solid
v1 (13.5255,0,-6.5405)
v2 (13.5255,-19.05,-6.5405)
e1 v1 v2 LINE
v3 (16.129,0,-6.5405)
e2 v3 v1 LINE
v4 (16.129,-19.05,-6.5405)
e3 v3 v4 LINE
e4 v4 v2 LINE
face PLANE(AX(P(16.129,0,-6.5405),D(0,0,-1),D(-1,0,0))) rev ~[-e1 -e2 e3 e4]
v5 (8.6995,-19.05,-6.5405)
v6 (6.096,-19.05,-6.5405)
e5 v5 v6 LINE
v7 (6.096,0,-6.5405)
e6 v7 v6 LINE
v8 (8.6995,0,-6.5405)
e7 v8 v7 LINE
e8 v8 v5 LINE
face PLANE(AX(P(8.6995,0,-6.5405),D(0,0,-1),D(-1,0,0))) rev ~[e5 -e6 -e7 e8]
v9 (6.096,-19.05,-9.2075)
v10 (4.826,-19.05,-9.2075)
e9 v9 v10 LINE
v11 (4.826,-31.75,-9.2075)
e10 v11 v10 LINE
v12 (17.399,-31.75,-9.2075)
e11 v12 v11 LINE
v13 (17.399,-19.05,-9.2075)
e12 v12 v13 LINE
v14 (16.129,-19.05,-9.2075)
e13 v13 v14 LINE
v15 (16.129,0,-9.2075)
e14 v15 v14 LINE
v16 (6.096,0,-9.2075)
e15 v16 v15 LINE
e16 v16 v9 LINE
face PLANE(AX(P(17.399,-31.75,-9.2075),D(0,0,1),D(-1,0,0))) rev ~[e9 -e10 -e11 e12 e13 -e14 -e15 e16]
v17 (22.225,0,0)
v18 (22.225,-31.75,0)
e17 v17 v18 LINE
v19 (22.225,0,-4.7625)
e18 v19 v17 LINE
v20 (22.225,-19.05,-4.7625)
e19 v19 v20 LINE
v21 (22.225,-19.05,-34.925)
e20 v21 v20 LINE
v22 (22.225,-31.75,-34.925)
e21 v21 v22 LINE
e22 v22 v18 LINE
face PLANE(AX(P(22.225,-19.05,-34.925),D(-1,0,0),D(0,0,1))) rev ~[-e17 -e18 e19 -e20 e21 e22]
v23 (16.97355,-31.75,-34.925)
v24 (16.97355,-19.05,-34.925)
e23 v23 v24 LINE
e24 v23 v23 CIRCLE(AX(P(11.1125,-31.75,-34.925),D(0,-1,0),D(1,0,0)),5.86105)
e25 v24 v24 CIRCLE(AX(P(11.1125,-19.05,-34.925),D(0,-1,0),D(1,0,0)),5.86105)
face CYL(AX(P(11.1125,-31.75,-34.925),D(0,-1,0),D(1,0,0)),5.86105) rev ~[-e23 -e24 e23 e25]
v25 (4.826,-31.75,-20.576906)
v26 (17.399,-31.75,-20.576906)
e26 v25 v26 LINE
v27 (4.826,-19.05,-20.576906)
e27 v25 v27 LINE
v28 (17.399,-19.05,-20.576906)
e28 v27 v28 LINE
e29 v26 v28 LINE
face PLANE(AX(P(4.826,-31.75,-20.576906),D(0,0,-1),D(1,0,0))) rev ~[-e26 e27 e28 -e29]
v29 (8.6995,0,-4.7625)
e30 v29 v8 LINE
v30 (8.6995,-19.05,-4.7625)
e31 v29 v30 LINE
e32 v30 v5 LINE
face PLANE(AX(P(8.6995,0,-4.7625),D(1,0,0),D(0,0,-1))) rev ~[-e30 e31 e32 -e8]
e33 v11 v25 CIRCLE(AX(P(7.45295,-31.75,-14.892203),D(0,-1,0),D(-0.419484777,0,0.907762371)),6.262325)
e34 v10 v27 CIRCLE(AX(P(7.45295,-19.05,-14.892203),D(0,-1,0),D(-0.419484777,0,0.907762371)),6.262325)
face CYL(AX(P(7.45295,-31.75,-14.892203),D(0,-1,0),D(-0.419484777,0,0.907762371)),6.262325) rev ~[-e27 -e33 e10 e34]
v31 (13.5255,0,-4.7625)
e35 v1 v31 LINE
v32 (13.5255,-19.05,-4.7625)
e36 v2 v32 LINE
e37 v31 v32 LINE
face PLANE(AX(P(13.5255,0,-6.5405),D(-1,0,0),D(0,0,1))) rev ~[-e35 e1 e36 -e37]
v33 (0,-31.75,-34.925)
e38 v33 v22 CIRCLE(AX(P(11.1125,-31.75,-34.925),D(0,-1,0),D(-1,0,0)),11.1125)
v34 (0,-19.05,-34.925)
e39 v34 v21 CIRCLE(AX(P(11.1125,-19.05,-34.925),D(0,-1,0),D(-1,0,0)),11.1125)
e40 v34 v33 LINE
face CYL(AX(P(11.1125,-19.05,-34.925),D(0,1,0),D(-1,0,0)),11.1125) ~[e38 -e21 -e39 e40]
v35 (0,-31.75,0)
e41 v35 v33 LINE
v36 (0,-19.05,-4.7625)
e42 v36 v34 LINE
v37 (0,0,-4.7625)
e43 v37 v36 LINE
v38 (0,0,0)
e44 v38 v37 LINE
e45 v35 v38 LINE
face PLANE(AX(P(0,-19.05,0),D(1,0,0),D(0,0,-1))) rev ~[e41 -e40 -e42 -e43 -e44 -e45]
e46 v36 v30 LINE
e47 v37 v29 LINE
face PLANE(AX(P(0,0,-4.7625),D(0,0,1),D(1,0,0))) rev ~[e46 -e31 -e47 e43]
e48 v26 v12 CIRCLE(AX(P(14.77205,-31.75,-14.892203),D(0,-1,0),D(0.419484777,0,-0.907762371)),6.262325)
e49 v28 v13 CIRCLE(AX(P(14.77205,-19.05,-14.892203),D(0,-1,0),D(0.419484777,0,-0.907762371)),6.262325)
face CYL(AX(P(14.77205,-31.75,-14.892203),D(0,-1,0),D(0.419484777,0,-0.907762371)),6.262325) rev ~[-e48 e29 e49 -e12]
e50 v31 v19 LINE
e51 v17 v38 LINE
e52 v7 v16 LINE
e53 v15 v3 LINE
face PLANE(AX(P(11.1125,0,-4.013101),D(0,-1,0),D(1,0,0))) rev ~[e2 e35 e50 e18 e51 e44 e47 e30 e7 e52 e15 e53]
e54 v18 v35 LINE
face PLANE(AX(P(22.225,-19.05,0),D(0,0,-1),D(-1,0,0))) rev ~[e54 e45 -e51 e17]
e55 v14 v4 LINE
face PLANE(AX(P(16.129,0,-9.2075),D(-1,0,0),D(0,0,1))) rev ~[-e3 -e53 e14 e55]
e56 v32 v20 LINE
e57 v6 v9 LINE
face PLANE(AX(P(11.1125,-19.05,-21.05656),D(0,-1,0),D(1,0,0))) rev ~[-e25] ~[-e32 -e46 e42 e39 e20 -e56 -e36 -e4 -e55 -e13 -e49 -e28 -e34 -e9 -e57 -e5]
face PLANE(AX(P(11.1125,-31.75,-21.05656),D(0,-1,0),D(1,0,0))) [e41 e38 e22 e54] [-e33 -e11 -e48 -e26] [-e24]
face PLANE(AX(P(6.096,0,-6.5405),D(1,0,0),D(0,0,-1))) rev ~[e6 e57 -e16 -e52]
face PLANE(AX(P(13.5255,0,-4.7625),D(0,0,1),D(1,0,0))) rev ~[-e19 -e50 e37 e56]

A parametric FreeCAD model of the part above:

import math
import FreeCAD as App
import Part
import Sketcher
from FreeCAD import Vector
Q = App.Units.Quantity

doc = App.newDocument("Part")
params = doc.addObject("Spreadsheet::Sheet", "Params")
for row, (alias, value) in enumerate([
    ("sketch1_height", "0.07 in"),
    ("sketch1_width", "0.875 in"),
    ("sketch1_width2", "0.395 in"),
    ("sketch1_height2", "0.1875 in"),
    ("sketch1_height3", "0.105 in"),
    ("pad1_length", "0.75 in"),
    ("sketch2_radius", "0.4375 in"),
    ("sketch2_height", "1.375 in"),
    ("pad2_length", "0.5 in"),
    ("pocket1_length", "1 in"),
    ("sketch4_width", "0.495 in"),
    ("pocket2_length", "1 in"),
], start=1):
    params.set(f"A{row}", alias)
    params.set(f"B{row}", "=" + value)
    params.setAlias(f"B{row}", alias)

body = doc.addObject("PartDesign::Body", "Body")

sketch1 = doc.addObject("Sketcher::SketchObject", "Sketch")
body.addObject(sketch1)
sketch1.AttachmentSupport = (doc.XZ_Plane, [""])
sketch1.MapMode = "FlatFace"
sketch1.addGeometry([
    Part.LineSegment(Vector(22.2, 0, 0), Vector(0, 0, 0)),
    Part.LineSegment(Vector(0, 0, 0), Vector(0, -4.8, 0)),
    Part.LineSegment(Vector(0, -4.8, 0), Vector(8.7, -4.8, 0)),
    Part.LineSegment(Vector(8.7, -4.8, 0), Vector(8.7, -6.5, 0)),
    Part.LineSegment(Vector(8.7, -6.5, 0), Vector(6.1, -6.5, 0)),
    Part.LineSegment(Vector(6.1, -6.5, 0), Vector(6.1, -9.2, 0)),
    Part.LineSegment(Vector(6.1, -9.2, 0), Vector(16.1, -9.2, 0)),
    Part.LineSegment(Vector(16.1, -9.2, 0), Vector(16.1, -6.5, 0)),
    Part.LineSegment(Vector(16.1, -6.5, 0), Vector(13.5, -6.5, 0)),
    Part.LineSegment(Vector(13.5, -6.5, 0), Vector(13.5, -4.8, 0)),
    Part.LineSegment(Vector(13.5, -4.8, 0), Vector(22.2, -4.8, 0)),
    Part.LineSegment(Vector(22.2, -4.8, 0), Vector(22.2, 0, 0)),
], False)
sketch1.addConstraint([
    Sketcher.Constraint("Coincident", 0, 2, 1, 1),
    Sketcher.Constraint("Coincident", 1, 2, 2, 1),
    Sketcher.Constraint("Coincident", 2, 2, 3, 1),
    Sketcher.Constraint("Coincident", 3, 2, 4, 1),
    Sketcher.Constraint("Coincident", 4, 2, 5, 1),
    Sketcher.Constraint("Coincident", 5, 2, 6, 1),
    Sketcher.Constraint("Coincident", 6, 2, 7, 1),
    Sketcher.Constraint("Coincident", 7, 2, 8, 1),
    Sketcher.Constraint("Coincident", 8, 2, 9, 1),
    Sketcher.Constraint("Coincident", 9, 2, 10, 1),
    Sketcher.Constraint("Coincident", 10, 2, 11, 1),
    Sketcher.Constraint("Coincident", 11, 2, 0, 1),
    Sketcher.Constraint("Horizontal", 0),
    Sketcher.Constraint("Vertical", 1),
    Sketcher.Constraint("Horizontal", 2),
    Sketcher.Constraint("Vertical", 3),
    Sketcher.Constraint("Horizontal", 4),
    Sketcher.Constraint("Vertical", 5),
    Sketcher.Constraint("Horizontal", 6),
    Sketcher.Constraint("Vertical", 7),
    Sketcher.Constraint("Horizontal", 8),
    Sketcher.Constraint("Vertical", 9),
    Sketcher.Constraint("Horizontal", 10),
    Sketcher.Constraint("Vertical", 11),
    Sketcher.Constraint("Coincident", 0, 2, -1, 1),
    Sketcher.Constraint("Horizontal", 4, 2, 7, 2),
    Sketcher.Constraint("Horizontal", 2, 2, 9, 2),
    Sketcher.Constraint("Equal", 4, 8),
    Sketcher.Constraint("Equal", 2, 10),
    Sketcher.Constraint("DistanceY", 3, 2, 3, 1, Q("0.07 in")),
    Sketcher.Constraint("DistanceX", 0, 2, 0, 1, Q("0.875 in")),
    Sketcher.Constraint("DistanceX", 6, 1, 6, 2, Q("0.395 in")),
    Sketcher.Constraint("DistanceY", 1, 2, 1, 1, Q("0.1875 in")),
    Sketcher.Constraint("DistanceY", 5, 2, 5, 1, Q("0.105 in")),
    Sketcher.Constraint("DistanceX", 3, 2, 8, 2, Q("0.19 in")),
])
sketch1.setExpression("Constraints[29]", "Params.sketch1_height")
sketch1.setExpression("Constraints[30]", "Params.sketch1_width")
sketch1.setExpression("Constraints[31]", "Params.sketch1_width2")
sketch1.setExpression("Constraints[32]", "Params.sketch1_height2")
sketch1.setExpression("Constraints[33]", "Params.sketch1_height3")
pad1 = doc.addObject("PartDesign::Pad", "Pad")
body.addObject(pad1)
pad1.Profile = sketch1
pad1.setExpression("Length", "Params.pad1_length")

sketch2 = doc.addObject("Sketcher::SketchObject", "Sketch001")
body.addObject(sketch2)
sketch2.AttachmentSupport = (doc.XZ_Plane, [""])
sketch2.MapMode = "FlatFace"
sketch2.AttachmentOffset = App.Placement(Vector(0, 0, 0.75 * 25.4), App.Rotation())
sketch2.addGeometry([
    Part.ArcOfCircle(Part.Circle(Vector(11, -35, 0), Vector(0, 0, 1), 11), math.radians(180), math.radians(360)),
    Part.LineSegment(Vector(22, -35, 0), Vector(22, 0, 0)),
    Part.LineSegment(Vector(22, 0, 0), Vector(0, 0, 0)),
    Part.LineSegment(Vector(0, 0, 0), Vector(0, -35, 0)),
], False)
sketch2.addConstraint([
    Sketcher.Constraint("Tangent", 0, 2, 1, 1),
    Sketcher.Constraint("Coincident", 1, 2, 2, 1),
    Sketcher.Constraint("Coincident", 2, 2, 3, 1),
    Sketcher.Constraint("Tangent", 3, 2, 0, 1),
    Sketcher.Constraint("Vertical", 1),
    Sketcher.Constraint("Horizontal", 2),
    Sketcher.Constraint("Vertical", 3),
    Sketcher.Constraint("Coincident", 2, 2, -1, 1),
    Sketcher.Constraint("Radius", 0, Q("0.4375 in")),
    Sketcher.Constraint("DistanceY", 1, 1, 1, 2, Q("1.375 in")),
])
sketch2.setExpression("Constraints[8]", "Params.sketch2_radius")
sketch2.setExpression("Constraints[9]", "Params.sketch2_height")
pad2 = doc.addObject("PartDesign::Pad", "Pad001")
body.addObject(pad2)
pad2.Profile = sketch2
pad2.setExpression("Length", "Params.pad2_length")

sketch3 = doc.addObject("Sketcher::SketchObject", "Sketch002")
body.addObject(sketch3)
sketch3.AttachmentSupport = (doc.XZ_Plane, [""])
sketch3.MapMode = "FlatFace"
sketch3.AttachmentOffset = App.Placement(Vector(0, 0, 1.25 * 25.4), App.Rotation())
sketch3.addGeometry(Part.Circle(Vector(11, -35, 0), Vector(0, 0, 1), 6), False)
sketch3.addConstraint([
    Sketcher.Constraint("Diameter", 0, Q("0.4615 in")),
    Sketcher.Constraint("DistanceX", -1, 1, 0, 3, Q("0.4375 in")),
    Sketcher.Constraint("DistanceY", 0, 3, -1, 1, Q("1.375 in")),
])
pocket1 = doc.addObject("PartDesign::Pocket", "Pocket")
body.addObject(pocket1)
pocket1.Profile = sketch3
pocket1.setExpression("Length", "Params.pocket1_length")

sketch4 = doc.addObject("Sketcher::SketchObject", "Sketch003")
body.addObject(sketch4)
sketch4.AttachmentSupport = (doc.XZ_Plane, [""])
sketch4.MapMode = "FlatFace"
sketch4.AttachmentOffset = App.Placement(Vector(0, 0, 1.25 * 25.4), App.Rotation())
sketch4.addGeometry([
    Part.LineSegment(Vector(17, -9, 0), Vector(5, -9, 0)),
    Part.ArcOfCircle(Part.Circle(Vector(7, -15, 0), Vector(0, 0, 1), 6), math.radians(115), math.radians(245)),
    Part.LineSegment(Vector(5, -21, 0), Vector(17, -21, 0)),
    Part.ArcOfCircle(Part.Circle(Vector(15, -15, 0), Vector(0, 0, 1), 6), math.radians(-65), math.radians(65)),
], False)
sketch4.addConstraint([
    Sketcher.Constraint("Coincident", 0, 2, 1, 1),
    Sketcher.Constraint("Coincident", 1, 2, 2, 1),
    Sketcher.Constraint("Coincident", 2, 2, 3, 1),
    Sketcher.Constraint("Coincident", 3, 2, 0, 1),
    Sketcher.Constraint("Horizontal", 0),
    Sketcher.Constraint("Horizontal", 2),
    Sketcher.Constraint("Equal", 1, 3),
    Sketcher.Constraint("Horizontal", 1, 3, 3, 3),
    Sketcher.Constraint("Vertical", 0, 2, 1, 2),
    Sketcher.Constraint("DistanceX", 0, 2, 0, 1, Q("0.495 in")),
    Sketcher.Constraint("DistanceX", -1, 1, 0, 2, Q("0.19 in")),
    Sketcher.Constraint("DistanceY", 0, 2, -1, 1, Q("0.3625 in")),
    Sketcher.Constraint("Radius", 1, 6.262325),
    Sketcher.Constraint("DistanceX", 1, 3, 3, 3, 7.3191),
])
sketch4.setExpression("Constraints[9]", "Params.sketch4_width")
pocket2 = doc.addObject("PartDesign::Pocket", "Pocket001")
body.addObject(pocket2)
pocket2.Profile = sketch4
pocket2.setExpression("Length", "Params.pocket2_length")

doc.recompute()
